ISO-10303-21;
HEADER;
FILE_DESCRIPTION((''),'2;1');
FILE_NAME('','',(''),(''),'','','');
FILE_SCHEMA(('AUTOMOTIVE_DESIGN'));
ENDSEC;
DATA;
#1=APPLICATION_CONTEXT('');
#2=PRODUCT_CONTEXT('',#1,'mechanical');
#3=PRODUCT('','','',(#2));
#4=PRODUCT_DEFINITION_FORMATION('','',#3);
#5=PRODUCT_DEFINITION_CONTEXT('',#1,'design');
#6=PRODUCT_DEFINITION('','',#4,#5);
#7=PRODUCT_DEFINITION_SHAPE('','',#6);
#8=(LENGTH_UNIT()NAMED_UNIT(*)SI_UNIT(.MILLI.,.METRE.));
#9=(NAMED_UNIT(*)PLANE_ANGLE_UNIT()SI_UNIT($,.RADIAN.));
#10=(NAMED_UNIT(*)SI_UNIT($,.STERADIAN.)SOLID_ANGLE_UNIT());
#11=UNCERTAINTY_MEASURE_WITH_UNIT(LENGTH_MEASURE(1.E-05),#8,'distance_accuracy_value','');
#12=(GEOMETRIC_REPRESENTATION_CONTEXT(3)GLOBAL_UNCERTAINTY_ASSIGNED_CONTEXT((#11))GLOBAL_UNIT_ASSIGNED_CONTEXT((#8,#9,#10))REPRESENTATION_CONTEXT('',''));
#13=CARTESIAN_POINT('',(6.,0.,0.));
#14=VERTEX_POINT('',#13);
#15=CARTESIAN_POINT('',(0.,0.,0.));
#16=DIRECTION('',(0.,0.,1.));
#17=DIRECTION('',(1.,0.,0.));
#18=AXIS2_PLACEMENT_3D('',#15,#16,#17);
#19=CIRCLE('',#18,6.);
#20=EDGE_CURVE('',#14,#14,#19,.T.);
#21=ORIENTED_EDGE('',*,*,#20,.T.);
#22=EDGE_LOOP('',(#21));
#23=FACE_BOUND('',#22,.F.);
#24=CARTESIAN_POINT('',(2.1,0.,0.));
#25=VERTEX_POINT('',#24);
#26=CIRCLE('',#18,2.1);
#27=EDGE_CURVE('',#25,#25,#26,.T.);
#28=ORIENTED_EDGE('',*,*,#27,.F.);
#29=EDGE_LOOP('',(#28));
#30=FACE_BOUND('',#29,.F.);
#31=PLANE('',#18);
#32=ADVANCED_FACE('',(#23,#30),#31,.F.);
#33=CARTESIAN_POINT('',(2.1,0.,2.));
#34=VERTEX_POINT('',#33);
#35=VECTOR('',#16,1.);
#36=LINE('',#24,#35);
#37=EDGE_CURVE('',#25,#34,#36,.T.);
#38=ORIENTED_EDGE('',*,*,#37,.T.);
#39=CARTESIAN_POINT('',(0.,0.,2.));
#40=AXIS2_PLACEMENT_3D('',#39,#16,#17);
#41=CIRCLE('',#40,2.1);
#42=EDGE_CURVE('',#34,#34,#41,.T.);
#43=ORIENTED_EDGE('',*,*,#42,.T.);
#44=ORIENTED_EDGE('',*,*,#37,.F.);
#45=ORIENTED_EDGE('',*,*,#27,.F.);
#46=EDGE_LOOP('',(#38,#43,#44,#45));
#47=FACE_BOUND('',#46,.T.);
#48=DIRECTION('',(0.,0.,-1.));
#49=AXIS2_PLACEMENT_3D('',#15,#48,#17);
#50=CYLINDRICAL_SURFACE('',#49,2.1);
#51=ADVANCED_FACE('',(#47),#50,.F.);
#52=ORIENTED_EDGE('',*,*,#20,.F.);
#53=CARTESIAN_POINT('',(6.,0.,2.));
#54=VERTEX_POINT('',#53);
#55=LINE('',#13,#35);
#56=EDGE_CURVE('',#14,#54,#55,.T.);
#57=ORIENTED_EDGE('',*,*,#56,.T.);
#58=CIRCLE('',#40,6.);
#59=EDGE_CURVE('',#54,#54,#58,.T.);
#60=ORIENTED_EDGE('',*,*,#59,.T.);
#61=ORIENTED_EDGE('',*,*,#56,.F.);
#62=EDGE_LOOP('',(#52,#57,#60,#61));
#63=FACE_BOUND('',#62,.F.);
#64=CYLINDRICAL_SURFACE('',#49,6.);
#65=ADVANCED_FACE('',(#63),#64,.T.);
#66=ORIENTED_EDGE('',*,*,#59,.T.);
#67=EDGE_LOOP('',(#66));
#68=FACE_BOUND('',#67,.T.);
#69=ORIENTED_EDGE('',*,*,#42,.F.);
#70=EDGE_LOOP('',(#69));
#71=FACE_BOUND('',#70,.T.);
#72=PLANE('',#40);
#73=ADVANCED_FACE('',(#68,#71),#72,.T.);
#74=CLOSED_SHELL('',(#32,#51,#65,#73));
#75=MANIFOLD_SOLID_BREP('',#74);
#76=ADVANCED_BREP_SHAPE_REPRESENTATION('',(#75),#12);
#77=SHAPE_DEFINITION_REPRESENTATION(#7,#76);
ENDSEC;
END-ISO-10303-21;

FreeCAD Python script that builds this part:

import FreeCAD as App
import Part
import Sketcher
from FreeCAD import Vector
Q = App.Units.Quantity

doc = App.newDocument("Part")
params = doc.addObject("Spreadsheet::Sheet", "Params")
for row, (alias, value) in enumerate([
    ("sketch1_diameter", "12 mm"),
    ("sketch1_diameter2", "4.2 mm"),
    ("pad1_length", "2 mm"),
], start=1):
    params.set(f"A{row}", alias)
    params.set(f"B{row}", "=" + value)
    params.setAlias(f"B{row}", alias)

body = doc.addObject("PartDesign::Body", "Body")

# Sketch on XY plane
sketch1 = body.newObject("Sketcher::SketchObject", "Sketch")
sketch1.AttachmentSupport = (doc.getObject("XY_Plane"), [""])
sketch1.MapMode = "FlatFace"
sketch1.addGeometry(Part.Circle(Vector(0, 0, 0), Vector(0, 0, 1), 6), False)
sketch1.addGeometry(Part.Circle(Vector(0, 0, 0), Vector(0, 0, 1), 2.1), False)
sketch1.addConstraint(Sketcher.Constraint("Coincident", 0, 3, -1, 1))
sketch1.addConstraint(Sketcher.Constraint("Coincident", 1, 3, -1, 1))
sketch1.addConstraint(Sketcher.Constraint("Diameter", 0, Q("12 mm")))
sketch1.addConstraint(Sketcher.Constraint("Diameter", 1, Q("4.2 mm")))
sketch1.setExpression("Constraints[2]", "Params.sketch1_diameter")
sketch1.setExpression("Constraints[3]", "Params.sketch1_diameter2")
pad1 = body.newObject("PartDesign::Pad", "Pad")
pad1.Profile = sketch1
pad1.setExpression("Length", "Params.pad1_length")

doc.recompute()
